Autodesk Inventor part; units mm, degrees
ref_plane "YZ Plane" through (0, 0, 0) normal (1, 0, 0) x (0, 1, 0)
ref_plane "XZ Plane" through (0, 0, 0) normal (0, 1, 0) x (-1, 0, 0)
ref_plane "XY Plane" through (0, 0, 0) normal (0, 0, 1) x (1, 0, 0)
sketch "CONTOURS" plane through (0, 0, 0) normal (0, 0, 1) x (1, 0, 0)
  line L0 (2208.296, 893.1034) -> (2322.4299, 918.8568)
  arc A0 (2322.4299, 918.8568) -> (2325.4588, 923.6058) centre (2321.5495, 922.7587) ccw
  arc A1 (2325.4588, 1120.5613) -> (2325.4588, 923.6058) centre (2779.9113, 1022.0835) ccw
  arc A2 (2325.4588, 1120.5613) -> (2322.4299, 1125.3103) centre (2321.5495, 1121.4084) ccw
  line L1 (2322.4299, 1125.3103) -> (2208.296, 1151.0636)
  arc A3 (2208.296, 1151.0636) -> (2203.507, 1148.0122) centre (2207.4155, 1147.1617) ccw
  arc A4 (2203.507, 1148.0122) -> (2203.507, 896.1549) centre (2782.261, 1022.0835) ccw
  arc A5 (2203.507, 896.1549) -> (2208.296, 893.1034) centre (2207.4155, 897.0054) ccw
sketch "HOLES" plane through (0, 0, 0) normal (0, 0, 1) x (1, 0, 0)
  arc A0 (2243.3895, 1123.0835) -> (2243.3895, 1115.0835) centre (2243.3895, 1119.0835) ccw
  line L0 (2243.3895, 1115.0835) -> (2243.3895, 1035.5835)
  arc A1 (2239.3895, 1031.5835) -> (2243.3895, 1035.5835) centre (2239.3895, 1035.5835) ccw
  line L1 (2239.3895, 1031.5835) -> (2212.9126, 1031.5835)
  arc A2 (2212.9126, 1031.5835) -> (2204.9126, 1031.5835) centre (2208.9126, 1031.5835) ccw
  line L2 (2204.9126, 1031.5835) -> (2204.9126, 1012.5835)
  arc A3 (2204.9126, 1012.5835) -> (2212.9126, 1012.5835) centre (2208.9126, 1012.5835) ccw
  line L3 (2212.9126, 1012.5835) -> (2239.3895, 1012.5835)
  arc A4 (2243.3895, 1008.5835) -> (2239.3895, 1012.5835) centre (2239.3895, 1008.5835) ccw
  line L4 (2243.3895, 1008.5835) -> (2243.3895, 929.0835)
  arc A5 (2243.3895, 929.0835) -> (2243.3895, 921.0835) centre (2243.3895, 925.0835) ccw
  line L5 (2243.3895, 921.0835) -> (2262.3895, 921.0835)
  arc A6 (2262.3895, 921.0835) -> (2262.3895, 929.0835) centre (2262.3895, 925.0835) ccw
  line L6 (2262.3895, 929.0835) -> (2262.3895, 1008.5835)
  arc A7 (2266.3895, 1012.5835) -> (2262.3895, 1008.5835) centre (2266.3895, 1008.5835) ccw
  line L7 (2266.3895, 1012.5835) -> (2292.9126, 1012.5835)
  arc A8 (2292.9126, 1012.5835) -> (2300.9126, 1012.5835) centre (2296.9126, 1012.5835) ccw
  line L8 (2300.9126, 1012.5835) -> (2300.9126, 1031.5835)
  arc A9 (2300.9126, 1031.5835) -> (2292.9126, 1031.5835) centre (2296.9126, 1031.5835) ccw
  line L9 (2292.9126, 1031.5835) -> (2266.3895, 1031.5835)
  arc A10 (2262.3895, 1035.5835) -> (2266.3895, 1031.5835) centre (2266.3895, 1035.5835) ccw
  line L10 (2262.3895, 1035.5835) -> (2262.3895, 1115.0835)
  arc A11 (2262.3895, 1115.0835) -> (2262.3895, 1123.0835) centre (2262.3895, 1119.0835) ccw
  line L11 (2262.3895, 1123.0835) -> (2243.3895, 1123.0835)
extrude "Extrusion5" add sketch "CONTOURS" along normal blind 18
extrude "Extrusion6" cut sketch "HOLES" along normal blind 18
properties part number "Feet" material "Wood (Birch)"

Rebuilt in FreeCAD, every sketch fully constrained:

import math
import FreeCAD as App
import Part
import Sketcher

doc = App.newDocument("Part")
body = doc.addObject("PartDesign::Body", "Body")

# Sketch on XY plane
sketch1 = doc.addObject("Sketcher::SketchObject", "Sketch")
body.addObject(sketch1)
sketch1.AttachmentSupport = (doc.XY_Plane, [""])
sketch1.MapMode = "FlatFace"
sketch1.addGeometry(Part.ArcOfCircle(Part.Circle(App.Vector(2207.4, 897, 0), App.Vector(0, 0, 1), 4), math.radians(-168), math.radians(-77)), False)
sketch1.addGeometry(Part.LineSegment(App.Vector(2208.3, 893.1, 0), App.Vector(2322.4, 918.9, 0)), False)
sketch1.addGeometry(Part.ArcOfCircle(Part.Circle(App.Vector(2321.5, 922.8, 0), App.Vector(0, 0, 1), 4), math.radians(-77), math.radians(12)), False)
sketch1.addGeometry(Part.ArcOfCircle(Part.Circle(App.Vector(2779.9, 1022.1, 0), App.Vector(0, 0, 1), 465), math.radians(168), math.radians(192)), False)
sketch1.addGeometry(Part.ArcOfCircle(Part.Circle(App.Vector(2321.5, 1121.4, 0), App.Vector(0, 0, 1), 4), math.radians(-12), math.radians(77)), False)
sketch1.addGeometry(Part.LineSegment(App.Vector(2322.4, 1125.3, 0), App.Vector(2208.3, 1151.1, 0)), False)
sketch1.addGeometry(Part.ArcOfCircle(Part.Circle(App.Vector(2207.4, 1147.2, 0), App.Vector(0, 0, 1), 4), math.radians(77), math.radians(168)), False)
sketch1.addGeometry(Part.ArcOfCircle(Part.Circle(App.Vector(2782.3, 1022.1, 0), App.Vector(0, 0, 1), 592.3), math.radians(168), math.radians(192)), False)
sketch1.addConstraint(Sketcher.Constraint("Tangent", 0, 2, 1, 1))
sketch1.addConstraint(Sketcher.Constraint("Tangent", 1, 2, 2, 1))
sketch1.addConstraint(Sketcher.Constraint("Tangent", 2, 2, 3, 2))
sketch1.addConstraint(Sketcher.Constraint("Tangent", 3, 1, 4, 1))
sketch1.addConstraint(Sketcher.Constraint("Tangent", 4, 2, 5, 1))
sketch1.addConstraint(Sketcher.Constraint("Tangent", 5, 2, 6, 1))
sketch1.addConstraint(Sketcher.Constraint("Tangent", 6, 2, 7, 1))
sketch1.addConstraint(Sketcher.Constraint("Tangent", 7, 2, 0, 1))
sketch1.addConstraint(Sketcher.Constraint("Equal", 0, 2))
sketch1.addConstraint(Sketcher.Constraint("Equal", 2, 4))
sketch1.addConstraint(Sketcher.Constraint("Equal", 4, 6))
sketch1.addConstraint(Sketcher.Constraint("Horizontal", 3, 3, 7, 3))
sketch1.addConstraint(Sketcher.Constraint("Vertical", 2, 3, 4, 3))
sketch1.addConstraint(Sketcher.Constraint("Vertical", 0, 3, 6, 3))
sketch1.addConstraint(Sketcher.Constraint("Radius", 0, 4.0))
sketch1.addConstraint(Sketcher.Constraint("Radius", 3, 465.0))
sketch1.addConstraint(Sketcher.Constraint("Radius", 7, 592.2957))
sketch1.addConstraint(Sketcher.Constraint("DistanceX", -1, 1, 1, 2, 2322.43))
sketch1.addConstraint(Sketcher.Constraint("DistanceY", 0, 2, 3, 3, 128.98))
sketch1.addConstraint(Sketcher.Constraint("DistanceX", -1, 1, 7, 3, 2782.261))
sketch1.addConstraint(Sketcher.Constraint("DistanceX", -1, 1, 0, 2, 2208.296))
sketch1.addConstraint(Sketcher.Constraint("DistanceY", -1, 1, 0, 3, 897.0054))
pad1 = doc.addObject("PartDesign::Pad", "Pad")
body.addObject(pad1)
pad1.Profile = sketch1
pad1.Length = 18

# Sketch on XY plane
sketch2 = doc.addObject("Sketcher::SketchObject", "Sketch001")
body.addObject(sketch2)
sketch2.AttachmentSupport = (doc.XY_Plane, [""])
sketch2.MapMode = "FlatFace"
sketch2.addGeometry(Part.LineSegment(App.Vector(2262.4, 1123.1, 0), App.Vector(2243.4, 1123.1, 0)), False)
sketch2.addGeometry(Part.ArcOfCircle(Part.Circle(App.Vector(2243.4, 1119.1, 0), App.Vector(0, 0, 1), 4), math.radians(90), math.radians(270)), False)
sketch2.addGeometry(Part.LineSegment(App.Vector(2243.4, 1115.1, 0), App.Vector(2243.4, 1035.6, 0)), False)
sketch2.addGeometry(Part.ArcOfCircle(Part.Circle(App.Vector(2239.4, 1035.6, 0), App.Vector(0, 0, 1), 4), math.radians(-90), math.radians(0)), False)
sketch2.addGeometry(Part.LineSegment(App.Vector(2239.4, 1031.6, 0), App.Vector(2212.9, 1031.6, 0)), False)
sketch2.addGeometry(Part.ArcOfCircle(Part.Circle(App.Vector(2208.9, 1031.6, 0), App.Vector(0, 0, 1), 4), math.radians(0), math.radians(180)), False)
sketch2.addGeometry(Part.LineSegment(App.Vector(2204.9, 1031.6, 0), App.Vector(2204.9, 1012.6, 0)), False)
sketch2.addGeometry(Part.ArcOfCircle(Part.Circle(App.Vector(2208.9, 1012.6, 0), App.Vector(0, 0, 1), 4), math.radians(180), math.radians(360)), False)
sketch2.addGeometry(Part.LineSegment(App.Vector(2212.9, 1012.6, 0), App.Vector(2239.4, 1012.6, 0)), False)
sketch2.addGeometry(Part.ArcOfCircle(Part.Circle(App.Vector(2239.4, 1008.6, 0), App.Vector(0, 0, 1), 4), math.radians(0), math.radians(90)), False)
sketch2.addGeometry(Part.LineSegment(App.Vector(2243.4, 1008.6, 0), App.Vector(2243.4, 929.1, 0)), False)
sketch2.addGeometry(Part.ArcOfCircle(Part.Circle(App.Vector(2243.4, 925.1, 0), App.Vector(0, 0, 1), 4), math.radians(90), math.radians(270)), False)
sketch2.addGeometry(Part.LineSegment(App.Vector(2243.4, 921.1, 0), App.Vector(2262.4, 921.1, 0)), False)
sketch2.addGeometry(Part.ArcOfCircle(Part.Circle(App.Vector(2262.4, 925.1, 0), App.Vector(0, 0, 1), 4), math.radians(-90), math.radians(90)), False)
sketch2.addGeometry(Part.LineSegment(App.Vector(2262.4, 929.1, 0), App.Vector(2262.4, 1008.6, 0)), False)
sketch2.addGeometry(Part.ArcOfCircle(Part.Circle(App.Vector(2266.4, 1008.6, 0), App.Vector(0, 0, 1), 4), math.radians(90), math.radians(180)), False)
sketch2.addGeometry(Part.LineSegment(App.Vector(2266.4, 1012.6, 0), App.Vector(2292.9, 1012.6, 0)), False)
sketch2.addGeometry(Part.ArcOfCircle(Part.Circle(App.Vector(2296.9, 1012.6, 0), App.Vector(0, 0, 1), 4), math.radians(180), math.radians(360)), False)
sketch2.addGeometry(Part.LineSegment(App.Vector(2300.9, 1012.6, 0), App.Vector(2300.9, 1031.6, 0)), False)
sketch2.addGeometry(Part.ArcOfCircle(Part.Circle(App.Vector(2296.9, 1031.6, 0), App.Vector(0, 0, 1), 4), math.radians(0), math.radians(180)), False)
sketch2.addGeometry(Part.LineSegment(App.Vector(2292.9, 1031.6, 0), App.Vector(2266.4, 1031.6, 0)), False)
sketch2.addGeometry(Part.ArcOfCircle(Part.Circle(App.Vector(2266.4, 1035.6, 0), App.Vector(0, 0, 1), 4), math.radians(180), math.radians(270)), False)
sketch2.addGeometry(Part.LineSegment(App.Vector(2262.4, 1035.6, 0), App.Vector(2262.4, 1115.1, 0)), False)
sketch2.addGeometry(Part.ArcOfCircle(Part.Circle(App.Vector(2262.4, 1119.1, 0), App.Vector(0, 0, 1), 4), math.radians(-90), math.radians(90)), False)
sketch2.addConstraint(Sketcher.Constraint("Tangent", 0, 2, 1, 1))
sketch2.addConstraint(Sketcher.Constraint("Coincident", 1, 2, 2, 1))
sketch2.addConstraint(Sketcher.Constraint("Tangent", 2, 2, 3, 2))
sketch2.addConstraint(Sketcher.Constraint("Tangent", 3, 1, 4, 1))
sketch2.addConstraint(Sketcher.Constraint("Coincident", 4, 2, 5, 1))
sketch2.addConstraint(Sketcher.Constraint("Tangent", 5, 2, 6, 1))
sketch2.addConstraint(Sketcher.Constraint("Tangent", 6, 2, 7, 1))
sketch2.addConstraint(Sketcher.Constraint("Coincident", 7, 2, 8, 1))
sketch2.addConstraint(Sketcher.Constraint("Tangent", 8, 2, 9, 2))
sketch2.addConstraint(Sketcher.Constraint("Tangent", 9, 1, 10, 1))
sketch2.addConstraint(Sketcher.Constraint("Coincident", 10, 2, 11, 1))
sketch2.addConstraint(Sketcher.Constraint("Tangent", 11, 2, 12, 1))
sketch2.addConstraint(Sketcher.Constraint("Tangent", 12, 2, 13, 1))
sketch2.addConstraint(Sketcher.Constraint("Coincident", 13, 2, 14, 1))
sketch2.addConstraint(Sketcher.Constraint("Tangent", 14, 2, 15, 2))
sketch2.addConstraint(Sketcher.Constraint("Tangent", 15, 1, 16, 1))
sketch2.addConstraint(Sketcher.Constraint("Coincident", 16, 2, 17, 1))
sketch2.addConstraint(Sketcher.Constraint("Tangent", 17, 2, 18, 1))
sketch2.addConstraint(Sketcher.Constraint("Tangent", 18, 2, 19, 1))
sketch2.addConstraint(Sketcher.Constraint("Coincident", 19, 2, 20, 1))
sketch2.addConstraint(Sketcher.Constraint("Tangent", 20, 2, 21, 2))
sketch2.addConstraint(Sketcher.Constraint("Tangent", 21, 1, 22, 1))
sketch2.addConstraint(Sketcher.Constraint("Coincident", 22, 2, 23, 1))
sketch2.addConstraint(Sketcher.Constraint("Tangent", 23, 2, 0, 1))
sketch2.addConstraint(Sketcher.Constraint("Horizontal", 0))
sketch2.addConstraint(Sketcher.Constraint("Vertical", 2))
sketch2.addConstraint(Sketcher.Constraint("Horizontal", 4))
sketch2.addConstraint(Sketcher.Constraint("Vertical", 6))
sketch2.addConstraint(Sketcher.Constraint("Horizontal", 8))
sketch2.addConstraint(Sketcher.Constraint("Vertical", 10))
sketch2.addConstraint(Sketcher.Constraint("Horizontal", 12))
sketch2.addConstraint(Sketcher.Constraint("Vertical", 14))
sketch2.addConstraint(Sketcher.Constraint("Horizontal", 16))
sketch2.addConstraint(Sketcher.Constraint("Vertical", 18))
sketch2.addConstraint(Sketcher.Constraint("Horizontal", 20))
sketch2.addConstraint(Sketcher.Constraint("Vertical", 22))
sketch2.addConstraint(Sketcher.Constraint("Equal", 1, 3))
sketch2.addConstraint(Sketcher.Constraint("Equal", 3, 5))
sketch2.addConstraint(Sketcher.Constraint("Equal", 5, 7))
sketch2.addConstraint(Sketcher.Constraint("Equal", 7, 9))
sketch2.addConstraint(Sketcher.Constraint("Equal", 9, 11))
sketch2.addConstraint(Sketcher.Constraint("Equal", 11, 13))
sketch2.addConstraint(Sketcher.Constraint("Equal", 13, 15))
sketch2.addConstraint(Sketcher.Constraint("Equal", 15, 17))
sketch2.addConstraint(Sketcher.Constraint("Equal", 17, 19))
sketch2.addConstraint(Sketcher.Constraint("Equal", 19, 21))
sketch2.addConstraint(Sketcher.Constraint("Equal", 21, 23))
sketch2.addConstraint(Sketcher.Constraint("Horizontal", 9, 3, 15, 3))
sketch2.addConstraint(Sketcher.Constraint("Horizontal", 7, 3, 17, 3))
sketch2.addConstraint(Sketcher.Constraint("Horizontal", 5, 3, 19, 3))
sketch2.addConstraint(Sketcher.Constraint("Horizontal", 3, 3, 21, 3))
sketch2.addConstraint(Sketcher.Constraint("Horizontal", 19, 3, 3, 1))
sketch2.addConstraint(Sketcher.Constraint("Horizontal", 6, 2, 7, 2))
sketch2.addConstraint(Sketcher.Constraint("Vertical", 3, 3, 9, 3))
sketch2.addConstraint(Sketcher.Constraint("Vertical", 1, 3, 11, 3))
sketch2.addConstraint(Sketcher.Constraint("Vertical", 15, 3, 21, 3))
sketch2.addConstraint(Sketcher.Constraint("Vertical", 13, 3, 23, 3))
sketch2.addConstraint(Sketcher.Constraint("Vertical", 0, 2, 1, 2))
sketch2.addConstraint(Sketcher.Constraint("Vertical", 12, 2, 13, 2))
sketch2.addConstraint(Sketcher.Constraint("Equal", 12, 6))
sketch2.addConstraint(Sketcher.Constraint("Equal", 2, 10))
sketch2.addConstraint(Sketcher.Constraint("Radius", 1, 4.0))
sketch2.addConstraint(Sketcher.Constraint("DistanceX", 0, 2, 0, 1, 19.0))
sketch2.addConstraint(Sketcher.Constraint("DistanceY", 2, 2, 2, 1, 79.5))
sketch2.addConstraint(Sketcher.Constraint("DistanceX", 7, 3, 17, 3, 88.0))
sketch2.addConstraint(Sketcher.Constraint("DistanceX", 4, 2, 4, 1, 26.477))
sketch2.addConstraint(Sketcher.Constraint("DistanceX", -1, 1, 1, 3, 2243.3895))
sketch2.addConstraint(Sketcher.Constraint("DistanceY", -1, 1, 1, 3, 1119.0835))
pocket1 = doc.addObject("PartDesign::Pocket", "Pocket")
body.addObject(pocket1)
pocket1.Profile = sketch2
pocket1.Length = 18
pocket1.Reversed = True

doc.recompute()
